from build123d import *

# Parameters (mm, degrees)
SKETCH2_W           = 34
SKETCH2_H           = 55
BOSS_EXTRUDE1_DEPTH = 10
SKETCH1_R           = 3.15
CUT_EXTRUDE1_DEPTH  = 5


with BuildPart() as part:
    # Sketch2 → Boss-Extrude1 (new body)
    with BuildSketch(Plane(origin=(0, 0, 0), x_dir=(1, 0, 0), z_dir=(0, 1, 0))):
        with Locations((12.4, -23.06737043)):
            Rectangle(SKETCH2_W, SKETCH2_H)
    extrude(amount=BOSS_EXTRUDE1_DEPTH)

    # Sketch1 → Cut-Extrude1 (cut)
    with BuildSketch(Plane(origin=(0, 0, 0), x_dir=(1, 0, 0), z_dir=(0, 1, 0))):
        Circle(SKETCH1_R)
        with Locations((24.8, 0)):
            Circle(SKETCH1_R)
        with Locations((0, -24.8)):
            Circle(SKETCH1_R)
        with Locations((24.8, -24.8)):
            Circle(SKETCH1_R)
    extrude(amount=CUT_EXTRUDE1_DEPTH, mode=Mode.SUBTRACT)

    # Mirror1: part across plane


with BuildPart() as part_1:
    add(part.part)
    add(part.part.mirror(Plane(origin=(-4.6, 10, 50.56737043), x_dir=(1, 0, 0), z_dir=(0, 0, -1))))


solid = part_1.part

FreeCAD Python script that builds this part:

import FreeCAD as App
import Part
import Sketcher
from FreeCAD import Vector

doc = App.newDocument("Part")
params = doc.addObject("Spreadsheet::Sheet", "Params")
for row, (alias, value) in enumerate([
    ("sketch1_width", "34 mm"),
    ("sketch1_height", "55 mm"),
    ("pad1_length", "10 mm"),
    ("sketch2_diameter", "6.3 mm"),
    ("pocket1_length", "5 mm"),
], start=1):
    params.set(f"A{row}", alias)
    params.set(f"B{row}", "=" + value)
    params.setAlias(f"B{row}", alias)

body = doc.addObject("PartDesign::Body", "Body")

sketch1 = body.newObject("Sketcher::SketchObject", "Sketch")
sketch1.AttachmentSupport = (doc.getObject("XZ_Plane"), [""])
sketch1.MapMode = "FlatFace"
sketch1.addGeometry([
    Part.LineSegment(Vector(-4.6, -4.43263, 0), Vector(-4.6, 50.56737, 0)),
    Part.LineSegment(Vector(-4.6, 50.56737, 0), Vector(29.4, 50.56737, 0)),
    Part.LineSegment(Vector(29.4, 50.56737, 0), Vector(29.4, -4.43263, 0)),
    Part.LineSegment(Vector(29.4, -4.43263, 0), Vector(-4.6, -4.43263, 0)),
], False)
sketch1.addConstraint([
    Sketcher.Constraint("Coincident", 0, 2, 1, 1),
    Sketcher.Constraint("Coincident", 1, 2, 2, 1),
    Sketcher.Constraint("Coincident", 2, 2, 3, 1),
    Sketcher.Constraint("Coincident", 3, 2, 0, 1),
    Sketcher.Constraint("Vertical", 0),
    Sketcher.Constraint("Horizontal", 1),
    Sketcher.Constraint("Vertical", 2),
    Sketcher.Constraint("Horizontal", 3),
    Sketcher.Constraint("DistanceX", 1, 1, 1, 2, 34.0),
    Sketcher.Constraint("DistanceY", 0, 1, 0, 2, 55.0),
    Sketcher.Constraint("DistanceX", 0, 2, -1, 1, 4.6),
    Sketcher.Constraint("DistanceY", -1, 1, 0, 2, 50.56737),
])
sketch1.setExpression("Constraints[8]", "Params.sketch1_width")
sketch1.setExpression("Constraints[9]", "Params.sketch1_height")
pad1 = body.newObject("PartDesign::Pad", "Pad")
pad1.Profile = sketch1
pad1.setExpression("Length", "Params.pad1_length")
pad1.Reversed = True

sketch2 = body.newObject("Sketcher::SketchObject", "Sketch001")
sketch2.AttachmentSupport = (doc.getObject("XZ_Plane"), [""])
sketch2.MapMode = "FlatFace"
sketch2.addGeometry([
    Part.Circle(Vector(0, 0, 0), Vector(0, 0, 1), 3.15),
    Part.Circle(Vector(24.8, 0, 0), Vector(0, 0, 1), 3.15),
    Part.Circle(Vector(0, 24.8, 0), Vector(0, 0, 1), 3.15),
    Part.Circle(Vector(24.8, 24.8, 0), Vector(0, 0, 1), 3.15),
], False)
sketch2.addConstraint([
    Sketcher.Constraint("Coincident", 0, 3, -1, 1),
    Sketcher.Constraint("Equal", 0, 1),
    Sketcher.Constraint("Equal", 1, 2),
    Sketcher.Constraint("Equal", 2, 3),
    Sketcher.Constraint("PointOnObject", 1, 3, -1),
    Sketcher.Constraint("PointOnObject", 2, 3, -2),
    Sketcher.Constraint("Horizontal", 2, 3, 3, 3),
    Sketcher.Constraint("Vertical", 1, 3, 3, 3),
    Sketcher.Constraint("Diameter", 0, 6.3),
    Sketcher.Constraint("DistanceX", -1, 1, 1, 3, 24.8),
    Sketcher.Constraint("DistanceY", -1, 1, 2, 3, 24.8),
])
sketch2.setExpression("Constraints[8]", "Params.sketch2_diameter")
pocket1 = body.newObject("PartDesign::Pocket", "Pocket")
pocket1.Profile = sketch2
pocket1.setExpression("Length", "Params.pocket1_length")
body2 = doc.addObject("PartDesign::Body", "Body001")
doc.recompute()

body2.BaseFeature = body
doc.recompute()

mirroring = doc.addObject("Part::Mirroring", "Mirroring")
mirroring.Source = body
mirroring.Base = Vector(-4.6, 10, 50.56737)
mirroring.Normal = Vector(0, 0, -1)
body3 = doc.addObject("PartDesign::Body", "Body002")
body3.BaseFeature = mirroring
boolean = body2.newObject("PartDesign::Boolean", "Boolean")
boolean.Type = "Fuse"
boolean.addObjects([body3])
doc.recompute()
mirroring.Visibility = False

doc.recompute()
